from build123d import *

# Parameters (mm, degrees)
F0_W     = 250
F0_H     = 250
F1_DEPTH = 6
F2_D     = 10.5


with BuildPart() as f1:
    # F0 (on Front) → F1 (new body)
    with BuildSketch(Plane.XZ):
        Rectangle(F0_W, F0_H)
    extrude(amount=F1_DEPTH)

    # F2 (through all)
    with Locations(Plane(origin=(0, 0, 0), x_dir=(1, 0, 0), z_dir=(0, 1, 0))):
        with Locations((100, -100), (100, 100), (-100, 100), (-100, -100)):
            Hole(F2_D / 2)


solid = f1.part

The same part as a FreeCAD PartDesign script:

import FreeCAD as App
import Part
import Sketcher
from FreeCAD import Vector


def add_polygon(sketch, points):
    """Adds a closed chain of lines whose ends are joined by coincident constraints."""
    first, n = sketch.GeometryCount, len(points)
    for a, b in zip(points, points[1:] + points[:1]):
        sketch.addGeometry(Part.LineSegment(App.Vector(*a, 0), App.Vector(*b, 0)), False)
    for i in range(n):
        sketch.addConstraint(Sketcher.Constraint("Coincident", first + i, 2, first + (i + 1) % n, 1))

doc = App.newDocument("Part")
params = doc.addObject("Spreadsheet::Sheet", "Params")
for row, (alias, value) in enumerate([
    ("sketch1_width", "250 mm"),
    ("pad1_length", "6 mm"),
    ("sketch2_diameter", "10.5 mm"),
    ("hole_diameter", "10.5 mm"),
], start=1):
    params.set(f"A{row}", alias)
    params.set(f"B{row}", "=" + value)
    params.setAlias(f"B{row}", alias)

body = doc.addObject("PartDesign::Body", "Body")

sketch1 = doc.addObject("Sketcher::SketchObject", "Sketch")
body.addObject(sketch1)
sketch1.AttachmentSupport = (doc.XZ_Plane, [""])
sketch1.MapMode = "FlatFace"
add_polygon(sketch1, [(-125, 125), (-125, -125), (125, -125), (125, 125)])
sketch1.addConstraint([
    Sketcher.Constraint("Vertical", 0),
    Sketcher.Constraint("Horizontal", 1),
    Sketcher.Constraint("Vertical", 2),
    Sketcher.Constraint("Horizontal", 3),
    Sketcher.Constraint("Symmetric", 0, 2, 2, 2, -1, 1),
    Sketcher.Constraint("Equal", 3, 0),
    Sketcher.Constraint("DistanceX", 1, 1, 1, 2, 250.0),
])
sketch1.setExpression("Constraints[10]", "Params.sketch1_width")
pad1 = doc.addObject("PartDesign::Pad", "Pad")
body.addObject(pad1)
pad1.Profile = sketch1
pad1.setExpression("Length", "Params.pad1_length")

sketch2 = doc.addObject("Sketcher::SketchObject", "Sketch001")
body.addObject(sketch2)
sketch2.AttachmentSupport = (doc.XZ_Plane, [""])
sketch2.MapMode = "FlatFace"
sketch2.addGeometry([
    Part.Circle(Vector(100, 100, 0), Vector(0, 0, 1), 5.25),
    Part.Circle(Vector(100, -100, 0), Vector(0, 0, 1), 5.25),
    Part.Circle(Vector(-100, -100, 0), Vector(0, 0, 1), 5.25),
    Part.Circle(Vector(-100, 100, 0), Vector(0, 0, 1), 5.25),
], False)
sketch2.addConstraint([
    Sketcher.Constraint("Equal", 0, 1),
    Sketcher.Constraint("Equal", 1, 2),
    Sketcher.Constraint("Equal", 2, 3),
    Sketcher.Constraint("Symmetric", 0, 3, 2, 3, -1, 1),
    Sketcher.Constraint("Symmetric", 1, 3, 3, 3, -1, 1),
    Sketcher.Constraint("Symmetric", 1, 3, 2, 3, -2),
    Sketcher.Constraint("Diameter", 0, 10.5),
    Sketcher.Constraint("DistanceX", -1, 1, 0, 3, 100.0),
    Sketcher.Constraint("DistanceY", -1, 1, 0, 3, 100.0),
])
sketch2.setExpression("Constraints[6]", "Params.sketch2_diameter")
doc.recompute()
hole = doc.addObject("PartDesign::Hole", "Hole")
body.addObject(hole)
hole.Profile = sketch2
hole.ThreadType = "None"
hole.setExpression("Diameter", "Params.hole_diameter")
hole.DepthType = "ThroughAll"
hole.Reversed = True

doc.recompute()
